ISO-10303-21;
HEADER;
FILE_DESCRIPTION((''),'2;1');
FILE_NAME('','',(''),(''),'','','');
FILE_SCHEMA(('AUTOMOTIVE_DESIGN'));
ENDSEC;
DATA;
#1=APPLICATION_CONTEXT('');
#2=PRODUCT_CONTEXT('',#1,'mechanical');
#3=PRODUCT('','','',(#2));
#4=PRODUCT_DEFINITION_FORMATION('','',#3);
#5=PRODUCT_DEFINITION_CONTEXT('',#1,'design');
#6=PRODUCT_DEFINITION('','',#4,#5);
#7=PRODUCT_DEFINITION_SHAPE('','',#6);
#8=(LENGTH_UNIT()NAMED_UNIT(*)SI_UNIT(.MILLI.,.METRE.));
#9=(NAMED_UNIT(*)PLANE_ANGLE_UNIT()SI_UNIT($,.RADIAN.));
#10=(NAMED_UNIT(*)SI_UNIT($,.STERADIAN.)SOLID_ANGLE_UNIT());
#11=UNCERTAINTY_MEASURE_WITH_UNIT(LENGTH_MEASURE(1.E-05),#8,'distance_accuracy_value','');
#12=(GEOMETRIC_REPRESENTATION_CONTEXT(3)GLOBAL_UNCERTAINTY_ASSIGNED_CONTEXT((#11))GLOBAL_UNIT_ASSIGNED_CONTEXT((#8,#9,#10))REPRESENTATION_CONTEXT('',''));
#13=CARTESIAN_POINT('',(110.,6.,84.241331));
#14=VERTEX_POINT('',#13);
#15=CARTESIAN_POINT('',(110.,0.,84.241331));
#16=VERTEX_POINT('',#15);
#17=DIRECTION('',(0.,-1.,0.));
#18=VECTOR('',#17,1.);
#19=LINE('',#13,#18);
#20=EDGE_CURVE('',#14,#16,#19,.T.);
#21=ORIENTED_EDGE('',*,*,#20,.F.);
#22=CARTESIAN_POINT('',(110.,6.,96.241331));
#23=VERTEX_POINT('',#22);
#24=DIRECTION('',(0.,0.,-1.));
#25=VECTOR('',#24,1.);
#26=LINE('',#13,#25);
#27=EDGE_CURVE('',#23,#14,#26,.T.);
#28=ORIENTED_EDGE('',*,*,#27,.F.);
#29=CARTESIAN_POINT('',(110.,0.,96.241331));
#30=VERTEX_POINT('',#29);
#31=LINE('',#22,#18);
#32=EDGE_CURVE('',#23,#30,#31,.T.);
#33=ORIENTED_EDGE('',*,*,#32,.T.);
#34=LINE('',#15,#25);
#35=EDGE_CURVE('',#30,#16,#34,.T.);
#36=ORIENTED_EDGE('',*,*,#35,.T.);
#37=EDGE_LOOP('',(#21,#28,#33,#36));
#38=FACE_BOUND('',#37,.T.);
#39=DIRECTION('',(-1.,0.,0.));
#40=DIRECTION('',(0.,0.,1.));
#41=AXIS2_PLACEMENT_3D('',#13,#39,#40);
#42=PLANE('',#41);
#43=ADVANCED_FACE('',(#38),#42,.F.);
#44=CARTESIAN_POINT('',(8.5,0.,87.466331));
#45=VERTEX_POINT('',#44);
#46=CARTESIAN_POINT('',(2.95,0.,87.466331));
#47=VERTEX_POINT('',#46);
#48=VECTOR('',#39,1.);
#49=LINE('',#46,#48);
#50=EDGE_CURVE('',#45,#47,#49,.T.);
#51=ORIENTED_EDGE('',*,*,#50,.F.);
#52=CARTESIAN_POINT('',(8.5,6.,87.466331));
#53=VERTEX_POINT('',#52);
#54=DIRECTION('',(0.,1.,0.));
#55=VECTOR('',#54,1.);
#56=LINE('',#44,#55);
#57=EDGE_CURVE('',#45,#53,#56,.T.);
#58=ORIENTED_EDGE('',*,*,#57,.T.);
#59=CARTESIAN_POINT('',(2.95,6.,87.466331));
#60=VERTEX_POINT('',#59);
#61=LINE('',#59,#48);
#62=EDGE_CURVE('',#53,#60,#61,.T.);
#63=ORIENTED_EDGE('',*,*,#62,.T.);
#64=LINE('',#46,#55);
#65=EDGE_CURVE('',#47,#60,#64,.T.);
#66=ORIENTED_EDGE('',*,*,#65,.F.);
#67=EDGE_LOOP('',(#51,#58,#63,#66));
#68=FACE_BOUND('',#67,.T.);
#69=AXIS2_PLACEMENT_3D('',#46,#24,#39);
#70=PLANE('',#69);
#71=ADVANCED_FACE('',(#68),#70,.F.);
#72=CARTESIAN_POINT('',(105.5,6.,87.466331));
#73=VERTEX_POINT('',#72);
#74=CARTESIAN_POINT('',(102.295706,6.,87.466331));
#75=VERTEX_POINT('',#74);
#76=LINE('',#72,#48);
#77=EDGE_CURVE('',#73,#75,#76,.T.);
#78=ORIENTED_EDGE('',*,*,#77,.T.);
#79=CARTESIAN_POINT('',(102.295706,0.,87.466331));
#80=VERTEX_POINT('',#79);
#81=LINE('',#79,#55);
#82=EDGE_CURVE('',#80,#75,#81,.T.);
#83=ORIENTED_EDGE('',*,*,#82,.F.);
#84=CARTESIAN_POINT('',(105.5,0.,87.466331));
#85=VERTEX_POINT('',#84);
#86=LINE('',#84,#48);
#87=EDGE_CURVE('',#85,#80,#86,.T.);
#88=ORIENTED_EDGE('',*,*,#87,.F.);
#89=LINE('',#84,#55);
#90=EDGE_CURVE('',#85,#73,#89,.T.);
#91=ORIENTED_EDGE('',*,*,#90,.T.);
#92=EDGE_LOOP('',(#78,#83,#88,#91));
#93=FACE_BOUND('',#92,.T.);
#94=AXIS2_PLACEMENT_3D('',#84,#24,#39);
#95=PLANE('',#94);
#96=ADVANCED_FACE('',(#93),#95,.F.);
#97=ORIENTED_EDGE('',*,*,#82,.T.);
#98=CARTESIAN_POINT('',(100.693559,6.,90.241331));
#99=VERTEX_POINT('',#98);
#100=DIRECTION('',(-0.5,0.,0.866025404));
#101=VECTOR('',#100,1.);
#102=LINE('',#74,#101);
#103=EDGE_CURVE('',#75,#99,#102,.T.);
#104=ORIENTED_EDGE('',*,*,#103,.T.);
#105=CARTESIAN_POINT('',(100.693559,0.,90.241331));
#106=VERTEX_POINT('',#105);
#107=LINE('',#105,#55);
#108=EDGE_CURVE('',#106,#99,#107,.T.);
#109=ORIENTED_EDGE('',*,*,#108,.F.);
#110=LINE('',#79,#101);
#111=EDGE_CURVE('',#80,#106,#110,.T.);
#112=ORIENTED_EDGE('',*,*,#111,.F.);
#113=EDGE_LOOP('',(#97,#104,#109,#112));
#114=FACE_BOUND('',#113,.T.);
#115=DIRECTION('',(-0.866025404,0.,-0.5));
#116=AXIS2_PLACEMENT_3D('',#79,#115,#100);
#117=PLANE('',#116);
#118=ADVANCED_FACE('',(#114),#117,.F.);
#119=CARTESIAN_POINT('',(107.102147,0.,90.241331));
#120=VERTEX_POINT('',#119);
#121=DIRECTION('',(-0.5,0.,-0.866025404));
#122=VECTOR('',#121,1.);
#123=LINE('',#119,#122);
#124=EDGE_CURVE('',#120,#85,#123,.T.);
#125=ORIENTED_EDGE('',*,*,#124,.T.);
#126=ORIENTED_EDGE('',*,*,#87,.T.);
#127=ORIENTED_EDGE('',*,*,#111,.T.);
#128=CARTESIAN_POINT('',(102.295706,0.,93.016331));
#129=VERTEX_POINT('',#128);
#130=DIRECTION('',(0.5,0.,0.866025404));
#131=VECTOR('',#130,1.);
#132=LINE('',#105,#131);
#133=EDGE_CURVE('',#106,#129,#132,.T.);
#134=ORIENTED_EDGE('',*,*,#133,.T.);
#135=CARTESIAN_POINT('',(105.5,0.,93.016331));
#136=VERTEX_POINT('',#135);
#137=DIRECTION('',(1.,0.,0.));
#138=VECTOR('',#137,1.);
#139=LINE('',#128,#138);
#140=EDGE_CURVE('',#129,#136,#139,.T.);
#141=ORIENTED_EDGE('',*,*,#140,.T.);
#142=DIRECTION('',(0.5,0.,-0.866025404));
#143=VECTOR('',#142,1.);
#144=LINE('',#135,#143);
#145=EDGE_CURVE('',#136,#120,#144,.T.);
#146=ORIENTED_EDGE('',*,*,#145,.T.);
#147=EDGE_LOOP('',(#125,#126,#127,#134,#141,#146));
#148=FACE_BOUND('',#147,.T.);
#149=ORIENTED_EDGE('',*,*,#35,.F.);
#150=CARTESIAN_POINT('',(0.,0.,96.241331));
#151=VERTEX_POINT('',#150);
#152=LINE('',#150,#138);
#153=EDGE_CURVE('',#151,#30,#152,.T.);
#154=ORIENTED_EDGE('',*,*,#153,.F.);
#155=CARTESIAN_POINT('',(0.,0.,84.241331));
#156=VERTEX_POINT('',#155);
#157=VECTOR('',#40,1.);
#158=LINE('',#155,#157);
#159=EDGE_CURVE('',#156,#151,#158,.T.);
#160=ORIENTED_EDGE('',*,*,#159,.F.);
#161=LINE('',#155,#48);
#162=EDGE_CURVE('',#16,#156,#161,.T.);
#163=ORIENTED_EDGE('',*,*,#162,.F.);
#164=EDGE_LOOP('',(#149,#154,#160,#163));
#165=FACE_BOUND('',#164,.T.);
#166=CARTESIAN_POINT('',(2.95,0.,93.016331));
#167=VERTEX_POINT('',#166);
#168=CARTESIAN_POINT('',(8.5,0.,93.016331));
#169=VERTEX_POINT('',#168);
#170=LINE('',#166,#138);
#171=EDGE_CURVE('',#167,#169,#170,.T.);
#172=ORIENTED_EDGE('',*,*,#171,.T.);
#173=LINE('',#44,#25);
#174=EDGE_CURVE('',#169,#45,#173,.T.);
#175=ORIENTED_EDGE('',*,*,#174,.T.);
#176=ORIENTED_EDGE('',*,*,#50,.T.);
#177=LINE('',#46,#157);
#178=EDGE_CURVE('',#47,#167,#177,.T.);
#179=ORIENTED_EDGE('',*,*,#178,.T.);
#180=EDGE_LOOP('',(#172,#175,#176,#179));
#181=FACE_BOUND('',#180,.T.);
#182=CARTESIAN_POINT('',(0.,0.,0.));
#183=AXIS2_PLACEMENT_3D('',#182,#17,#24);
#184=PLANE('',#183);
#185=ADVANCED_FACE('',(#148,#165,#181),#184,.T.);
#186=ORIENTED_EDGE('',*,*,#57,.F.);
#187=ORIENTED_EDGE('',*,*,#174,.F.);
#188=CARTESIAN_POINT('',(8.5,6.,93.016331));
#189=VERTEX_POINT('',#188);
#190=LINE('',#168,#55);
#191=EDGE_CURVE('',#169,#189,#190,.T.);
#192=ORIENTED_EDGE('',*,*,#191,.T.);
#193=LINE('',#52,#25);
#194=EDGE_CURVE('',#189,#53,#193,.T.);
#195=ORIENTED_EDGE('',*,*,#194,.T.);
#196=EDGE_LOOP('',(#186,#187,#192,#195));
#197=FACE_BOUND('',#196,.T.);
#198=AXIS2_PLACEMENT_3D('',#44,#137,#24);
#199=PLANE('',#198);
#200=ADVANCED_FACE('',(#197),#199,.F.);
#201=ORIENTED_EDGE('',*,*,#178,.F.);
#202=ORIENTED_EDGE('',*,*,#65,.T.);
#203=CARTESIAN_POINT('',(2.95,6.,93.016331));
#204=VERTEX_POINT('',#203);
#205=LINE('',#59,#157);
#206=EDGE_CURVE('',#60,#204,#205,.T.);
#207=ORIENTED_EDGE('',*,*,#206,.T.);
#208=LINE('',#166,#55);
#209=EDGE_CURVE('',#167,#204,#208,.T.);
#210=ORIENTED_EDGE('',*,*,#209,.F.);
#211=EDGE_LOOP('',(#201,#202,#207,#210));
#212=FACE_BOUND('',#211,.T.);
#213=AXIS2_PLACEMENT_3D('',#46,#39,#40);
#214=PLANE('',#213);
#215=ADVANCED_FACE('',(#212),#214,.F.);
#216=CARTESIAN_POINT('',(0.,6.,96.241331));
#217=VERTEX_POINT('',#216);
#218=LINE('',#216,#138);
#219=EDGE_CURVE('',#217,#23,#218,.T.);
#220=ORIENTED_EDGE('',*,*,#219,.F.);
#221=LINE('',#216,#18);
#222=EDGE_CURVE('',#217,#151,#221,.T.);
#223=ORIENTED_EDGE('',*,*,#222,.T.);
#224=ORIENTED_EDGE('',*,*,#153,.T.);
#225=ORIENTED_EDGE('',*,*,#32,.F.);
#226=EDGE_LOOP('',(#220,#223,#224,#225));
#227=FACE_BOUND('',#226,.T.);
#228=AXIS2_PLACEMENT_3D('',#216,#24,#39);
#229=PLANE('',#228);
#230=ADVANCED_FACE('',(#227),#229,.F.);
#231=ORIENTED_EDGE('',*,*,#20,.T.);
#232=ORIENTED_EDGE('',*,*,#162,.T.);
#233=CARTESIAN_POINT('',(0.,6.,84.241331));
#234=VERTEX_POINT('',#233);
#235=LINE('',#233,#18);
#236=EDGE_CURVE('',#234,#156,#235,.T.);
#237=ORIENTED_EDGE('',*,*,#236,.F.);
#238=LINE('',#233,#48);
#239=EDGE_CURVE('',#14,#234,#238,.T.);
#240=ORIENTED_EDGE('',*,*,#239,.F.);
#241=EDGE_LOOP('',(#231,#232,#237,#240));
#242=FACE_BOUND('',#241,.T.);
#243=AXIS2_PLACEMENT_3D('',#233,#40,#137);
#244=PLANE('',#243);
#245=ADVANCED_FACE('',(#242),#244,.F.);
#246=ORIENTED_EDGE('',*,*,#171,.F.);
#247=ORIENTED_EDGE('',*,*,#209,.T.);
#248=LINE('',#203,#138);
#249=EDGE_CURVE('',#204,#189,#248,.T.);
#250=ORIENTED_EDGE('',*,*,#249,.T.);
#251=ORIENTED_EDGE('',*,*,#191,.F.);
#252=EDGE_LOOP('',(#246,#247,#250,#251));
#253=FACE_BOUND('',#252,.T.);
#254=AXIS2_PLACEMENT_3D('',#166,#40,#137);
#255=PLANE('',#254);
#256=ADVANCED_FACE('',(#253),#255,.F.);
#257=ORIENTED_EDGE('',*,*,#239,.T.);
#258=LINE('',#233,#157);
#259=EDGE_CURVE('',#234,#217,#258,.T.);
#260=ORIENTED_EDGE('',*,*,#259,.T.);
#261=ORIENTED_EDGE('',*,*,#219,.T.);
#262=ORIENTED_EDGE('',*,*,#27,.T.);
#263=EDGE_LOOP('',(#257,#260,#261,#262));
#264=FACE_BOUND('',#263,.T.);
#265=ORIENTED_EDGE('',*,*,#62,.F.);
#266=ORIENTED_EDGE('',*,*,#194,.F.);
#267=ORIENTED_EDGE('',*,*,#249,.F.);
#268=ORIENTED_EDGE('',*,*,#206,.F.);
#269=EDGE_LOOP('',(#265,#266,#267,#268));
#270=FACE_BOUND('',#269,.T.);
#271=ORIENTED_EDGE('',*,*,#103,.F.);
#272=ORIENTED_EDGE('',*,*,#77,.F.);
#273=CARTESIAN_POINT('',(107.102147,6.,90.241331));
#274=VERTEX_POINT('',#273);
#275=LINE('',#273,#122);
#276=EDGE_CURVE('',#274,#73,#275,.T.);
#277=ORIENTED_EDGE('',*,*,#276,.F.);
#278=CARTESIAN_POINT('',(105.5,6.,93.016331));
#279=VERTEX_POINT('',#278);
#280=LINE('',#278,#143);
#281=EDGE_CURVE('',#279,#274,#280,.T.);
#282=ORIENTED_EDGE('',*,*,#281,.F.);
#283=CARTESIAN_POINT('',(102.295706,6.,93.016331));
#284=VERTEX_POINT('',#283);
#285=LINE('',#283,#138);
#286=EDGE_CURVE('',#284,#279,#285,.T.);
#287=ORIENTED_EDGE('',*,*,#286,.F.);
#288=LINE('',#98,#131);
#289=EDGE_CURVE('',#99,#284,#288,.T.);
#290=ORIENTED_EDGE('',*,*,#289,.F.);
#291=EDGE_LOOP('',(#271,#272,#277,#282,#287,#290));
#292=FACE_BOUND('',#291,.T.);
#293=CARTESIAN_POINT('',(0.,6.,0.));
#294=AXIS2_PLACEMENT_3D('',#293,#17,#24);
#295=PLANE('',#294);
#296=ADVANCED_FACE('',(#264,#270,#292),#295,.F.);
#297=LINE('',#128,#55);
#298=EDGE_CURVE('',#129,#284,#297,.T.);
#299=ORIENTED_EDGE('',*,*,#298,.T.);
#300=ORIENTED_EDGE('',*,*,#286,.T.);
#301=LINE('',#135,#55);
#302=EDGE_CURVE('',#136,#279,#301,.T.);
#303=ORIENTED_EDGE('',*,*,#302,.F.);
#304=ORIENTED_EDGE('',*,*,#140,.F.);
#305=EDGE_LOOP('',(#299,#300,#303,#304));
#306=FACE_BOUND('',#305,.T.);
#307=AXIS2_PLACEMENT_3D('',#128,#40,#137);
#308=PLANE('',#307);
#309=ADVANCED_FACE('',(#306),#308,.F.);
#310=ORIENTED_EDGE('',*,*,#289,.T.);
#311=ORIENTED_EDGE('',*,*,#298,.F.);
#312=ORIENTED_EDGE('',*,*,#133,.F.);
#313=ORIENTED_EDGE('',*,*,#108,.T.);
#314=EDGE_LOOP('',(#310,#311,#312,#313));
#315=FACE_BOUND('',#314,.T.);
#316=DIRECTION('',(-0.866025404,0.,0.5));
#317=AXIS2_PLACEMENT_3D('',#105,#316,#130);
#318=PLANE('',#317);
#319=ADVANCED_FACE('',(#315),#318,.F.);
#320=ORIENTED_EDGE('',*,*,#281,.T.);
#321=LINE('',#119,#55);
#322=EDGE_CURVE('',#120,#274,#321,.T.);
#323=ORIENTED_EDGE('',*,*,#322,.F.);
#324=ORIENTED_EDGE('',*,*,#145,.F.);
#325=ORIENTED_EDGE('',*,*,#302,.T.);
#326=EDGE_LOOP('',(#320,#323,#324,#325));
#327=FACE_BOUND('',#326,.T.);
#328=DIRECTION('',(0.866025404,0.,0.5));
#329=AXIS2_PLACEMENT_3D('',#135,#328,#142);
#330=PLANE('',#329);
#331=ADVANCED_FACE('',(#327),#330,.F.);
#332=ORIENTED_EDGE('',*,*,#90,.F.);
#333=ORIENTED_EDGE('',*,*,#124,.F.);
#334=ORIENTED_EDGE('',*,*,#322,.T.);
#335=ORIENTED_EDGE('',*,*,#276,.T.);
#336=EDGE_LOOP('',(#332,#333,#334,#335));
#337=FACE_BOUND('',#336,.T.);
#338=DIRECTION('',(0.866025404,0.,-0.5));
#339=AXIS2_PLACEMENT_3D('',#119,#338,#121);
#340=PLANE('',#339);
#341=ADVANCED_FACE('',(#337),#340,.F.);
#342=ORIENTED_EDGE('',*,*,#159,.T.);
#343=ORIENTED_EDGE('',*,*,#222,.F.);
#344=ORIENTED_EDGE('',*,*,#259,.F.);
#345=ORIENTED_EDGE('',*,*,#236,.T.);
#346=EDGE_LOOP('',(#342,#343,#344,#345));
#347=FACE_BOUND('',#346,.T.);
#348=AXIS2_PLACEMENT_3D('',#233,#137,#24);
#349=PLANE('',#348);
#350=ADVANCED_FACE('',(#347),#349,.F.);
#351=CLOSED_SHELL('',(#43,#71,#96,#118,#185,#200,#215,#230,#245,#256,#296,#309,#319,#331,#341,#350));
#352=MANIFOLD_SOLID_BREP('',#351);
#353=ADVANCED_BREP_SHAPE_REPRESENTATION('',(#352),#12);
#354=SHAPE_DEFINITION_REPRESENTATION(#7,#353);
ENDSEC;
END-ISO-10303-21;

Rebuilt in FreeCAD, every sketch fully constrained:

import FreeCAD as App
import Part
import Sketcher
Q = App.Units.Quantity


def add_polygon(sketch, points):
    """Adds a closed chain of lines whose ends are joined by coincident constraints."""
    first, n = sketch.GeometryCount, len(points)
    for a, b in zip(points, points[1:] + points[:1]):
        sketch.addGeometry(Part.LineSegment(App.Vector(*a, 0), App.Vector(*b, 0)), False)
    for i in range(n):
        sketch.addConstraint(Sketcher.Constraint("Coincident", first + i, 2, first + (i + 1) % n, 1))

doc = App.newDocument("Part")
params = doc.addObject("Spreadsheet::Sheet", "Params")
for row, (alias, value) in enumerate([
    ("sketch1_width", "110 mm"),
    ("sketch1_height", "12 mm"),
    ("pad1_length", "6 mm"),
    ("sketch2_width", "5.55 mm"),
    ("pocket1_length", "6 mm"),
    ("pocket2_length", "6 mm"),
], start=1):
    params.set(f"A{row}", alias)
    params.set(f"B{row}", "=" + value)
    params.setAlias(f"B{row}", alias)

body = doc.addObject("PartDesign::Body", "Body")

sketch1 = body.newObject("Sketcher::SketchObject", "Sketch")
sketch1.AttachmentSupport = (doc.getObject("XZ_Plane"), [""])
sketch1.MapMode = "FlatFace"
add_polygon(sketch1, [(0, 84.241331), (0, 96.241331), (110, 96.241331), (110, 84.241331)])
sketch1.addConstraint([
    Sketcher.Constraint("Vertical", 0),
    Sketcher.Constraint("Horizontal", 1),
    Sketcher.Constraint("Vertical", 2),
    Sketcher.Constraint("Horizontal", 3),
    Sketcher.Constraint("PointOnObject", 0, 2, -2),
    Sketcher.Constraint("DistanceX", 1, 1, 1, 2, 110.0),
    Sketcher.Constraint("DistanceY", 0, 1, 0, 2, 12.0),
    Sketcher.Constraint("DistanceY", -1, 1, 0, 2, 96.241331),
])
sketch1.setExpression("Constraints[9]", "Params.sketch1_width")
sketch1.setExpression("Constraints[10]", "Params.sketch1_height")
pad1 = body.newObject("PartDesign::Pad", "Pad")
pad1.Profile = sketch1
pad1.setExpression("Length", "Params.pad1_length")
pad1.Reversed = True

sketch2 = body.newObject("Sketcher::SketchObject", "Sketch001")
sketch2.AttachmentSupport = (doc.getObject("XZ_Plane"), [""])
sketch2.MapMode = "FlatFace"
sketch2.AttachmentOffset = App.Placement(App.Vector(0, 0, -6), App.Rotation())
add_polygon(sketch2, [(2.95, 87.466331), (2.95, 93.016331), (8.5, 93.016331), (8.5, 87.466331)])
sketch2.addConstraint([
    Sketcher.Constraint("Vertical", 0),
    Sketcher.Constraint("Horizontal", 1),
    Sketcher.Constraint("Vertical", 2),
    Sketcher.Constraint("Horizontal", 3),
    Sketcher.Constraint("Equal", 3, 0),
    Sketcher.Constraint("DistanceX", 1, 1, 1, 2, 5.55),
    Sketcher.Constraint("DistanceX", -1, 1, 1, 2, 8.5),
    Sketcher.Constraint("DistanceY", -1, 1, 0, 2, 93.016331),
])
sketch2.setExpression("Constraints[9]", "Params.sketch2_width")
pocket1 = body.newObject("PartDesign::Pocket", "Pocket")
pocket1.Profile = sketch2
pocket1.setExpression("Length", "Params.pocket1_length")
pocket1.Reversed = True

sketch3 = body.newObject("Sketcher::SketchObject", "Sketch002")
sketch3.AttachmentSupport = (doc.getObject("XZ_Plane"), [""])
sketch3.MapMode = "FlatFace"
sketch3.AttachmentOffset = App.Placement(App.Vector(0, 0, -6), App.Rotation())
add_polygon(sketch3, [(102.295706, 93.016331), (105.5, 93.016331), (107.102147, 90.241331), (105.5, 87.466331), (102.295706, 87.466331), (100.693559, 90.241331)])
sketch3.addConstraint([
    Sketcher.Constraint("Horizontal", 0),
    Sketcher.Constraint("Horizontal", 3),
    Sketcher.Constraint("Parallel", 1, 4),
    Sketcher.Constraint("Parallel", 2, 5),
    Sketcher.Constraint("Horizontal", 1, 2, 4, 2),
    Sketcher.Constraint("Vertical", 0, 2, 2, 2),
    Sketcher.Constraint("Vertical", 3, 2, 5, 2),
    Sketcher.Constraint("Angle", 1, Q("-60 deg")),
    Sketcher.Constraint("DistanceX", -1, 1, 0, 2, 105.5),
    Sketcher.Constraint("DistanceY", 2, 2, 0, 2, 5.55),
    Sketcher.Constraint("DistanceX", 0, 1, 0, 2, 3.204294),
    Sketcher.Constraint("DistanceY", -1, 1, 0, 2, 93.016331),
])
pocket2 = body.newObject("PartDesign::Pocket", "Pocket001")
pocket2.Profile = sketch3
pocket2.setExpression("Length", "Params.pocket2_length")
pocket2.Reversed = True

doc.recompute()
